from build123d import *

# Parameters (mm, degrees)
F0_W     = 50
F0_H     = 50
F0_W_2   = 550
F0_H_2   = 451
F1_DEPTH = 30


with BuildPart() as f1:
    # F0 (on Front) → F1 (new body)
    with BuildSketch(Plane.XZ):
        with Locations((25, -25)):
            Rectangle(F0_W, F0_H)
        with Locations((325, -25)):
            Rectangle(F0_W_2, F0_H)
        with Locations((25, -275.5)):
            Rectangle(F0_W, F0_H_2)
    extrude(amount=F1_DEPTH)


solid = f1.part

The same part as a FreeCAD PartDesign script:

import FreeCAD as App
import Part
import Sketcher

V = App.Vector


def add_polygon(sketch, points):
    """Adds a closed chain of lines whose ends are joined by coincident constraints."""
    first, n = sketch.GeometryCount, len(points)
    for a, b in zip(points, points[1:] + points[:1]):
        sketch.addGeometry(Part.LineSegment(App.Vector(*a, 0), App.Vector(*b, 0)), False)
    for i in range(n):
        sketch.addConstraint(Sketcher.Constraint("Coincident", first + i, 2, first + (i + 1) % n, 1))

doc = App.newDocument("Part")
body = doc.addObject("PartDesign::Body", "Body")

sketch1 = body.newObject("Sketcher::SketchObject", "Sketch")
sketch1.AttachmentSupport = (doc.getObject("XZ_Plane"), [""])
sketch1.MapMode = "FlatFace"
add_polygon(sketch1, [(0, 0), (0, -501), (50, -501), (50, -50), (600, -50), (600, 0)])
sketch1.addConstraint([
    Sketcher.Constraint("Vertical", 0),
    Sketcher.Constraint("Horizontal", 1),
    Sketcher.Constraint("Vertical", 2),
    Sketcher.Constraint("Horizontal", 3),
    Sketcher.Constraint("Vertical", 4),
    Sketcher.Constraint("Horizontal", 5),
    Sketcher.Constraint("Coincident", 5, 2, -1, 1),
    Sketcher.Constraint("Equal", 1, 4),
    Sketcher.Constraint("DistanceX", 1, 1, 1, 2, 50.0),
    Sketcher.Constraint("DistanceX", 3, 1, 3, 2, 550.0),
    Sketcher.Constraint("DistanceY", 0, 2, 0, 1, 501.0),
])
pad1 = body.newObject("PartDesign::Pad", "Pad")
pad1.Profile = sketch1
pad1.Length = 30

doc.recompute()
